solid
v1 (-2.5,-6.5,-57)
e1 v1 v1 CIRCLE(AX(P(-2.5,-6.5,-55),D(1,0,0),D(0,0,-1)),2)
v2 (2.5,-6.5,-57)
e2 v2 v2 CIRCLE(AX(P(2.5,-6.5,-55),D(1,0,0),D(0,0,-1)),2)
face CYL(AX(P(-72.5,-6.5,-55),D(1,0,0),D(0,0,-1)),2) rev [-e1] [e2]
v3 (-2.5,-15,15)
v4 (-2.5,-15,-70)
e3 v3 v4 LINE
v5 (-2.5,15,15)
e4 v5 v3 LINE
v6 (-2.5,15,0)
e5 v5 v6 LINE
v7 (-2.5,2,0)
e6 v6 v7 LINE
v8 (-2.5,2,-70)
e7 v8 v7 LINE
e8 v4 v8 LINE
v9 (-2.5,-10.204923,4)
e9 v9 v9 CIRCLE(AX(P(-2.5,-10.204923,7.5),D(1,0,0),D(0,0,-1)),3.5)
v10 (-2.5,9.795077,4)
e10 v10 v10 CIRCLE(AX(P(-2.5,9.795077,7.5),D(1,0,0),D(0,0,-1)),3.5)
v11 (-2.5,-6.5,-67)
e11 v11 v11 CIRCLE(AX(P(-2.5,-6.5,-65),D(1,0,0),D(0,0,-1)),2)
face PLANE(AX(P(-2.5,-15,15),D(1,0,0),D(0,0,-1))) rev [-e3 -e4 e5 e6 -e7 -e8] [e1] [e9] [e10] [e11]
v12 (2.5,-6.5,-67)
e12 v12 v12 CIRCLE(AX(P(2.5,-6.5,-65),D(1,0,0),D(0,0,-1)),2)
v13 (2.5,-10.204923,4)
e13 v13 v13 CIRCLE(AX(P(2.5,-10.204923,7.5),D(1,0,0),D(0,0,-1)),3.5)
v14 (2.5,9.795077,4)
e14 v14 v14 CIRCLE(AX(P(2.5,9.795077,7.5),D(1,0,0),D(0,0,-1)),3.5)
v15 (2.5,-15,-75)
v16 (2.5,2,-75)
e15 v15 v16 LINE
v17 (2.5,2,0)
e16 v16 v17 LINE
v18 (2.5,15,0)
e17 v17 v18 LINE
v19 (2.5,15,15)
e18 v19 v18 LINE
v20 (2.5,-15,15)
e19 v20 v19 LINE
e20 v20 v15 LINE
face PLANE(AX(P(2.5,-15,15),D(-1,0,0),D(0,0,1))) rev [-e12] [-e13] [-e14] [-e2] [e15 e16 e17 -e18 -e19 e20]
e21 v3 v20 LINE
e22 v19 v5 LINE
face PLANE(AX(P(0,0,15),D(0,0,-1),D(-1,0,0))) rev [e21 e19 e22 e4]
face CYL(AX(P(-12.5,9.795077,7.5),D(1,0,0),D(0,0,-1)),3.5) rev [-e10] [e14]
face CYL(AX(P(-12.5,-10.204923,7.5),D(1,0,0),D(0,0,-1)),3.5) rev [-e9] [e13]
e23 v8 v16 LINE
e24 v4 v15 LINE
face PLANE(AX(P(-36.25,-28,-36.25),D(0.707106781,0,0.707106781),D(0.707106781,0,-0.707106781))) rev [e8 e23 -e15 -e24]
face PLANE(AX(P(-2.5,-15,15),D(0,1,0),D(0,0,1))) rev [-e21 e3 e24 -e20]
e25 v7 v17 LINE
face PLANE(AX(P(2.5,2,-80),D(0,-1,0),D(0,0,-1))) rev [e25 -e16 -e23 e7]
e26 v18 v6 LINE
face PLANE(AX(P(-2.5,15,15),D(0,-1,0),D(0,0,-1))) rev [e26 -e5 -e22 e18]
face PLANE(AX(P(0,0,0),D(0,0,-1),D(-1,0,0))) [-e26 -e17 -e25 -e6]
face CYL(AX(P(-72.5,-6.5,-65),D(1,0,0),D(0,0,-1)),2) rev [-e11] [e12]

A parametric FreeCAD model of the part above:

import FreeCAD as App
import Part
import Sketcher
from FreeCAD import Vector
Q = App.Units.Quantity


def add_polygon(sketch, points):
    """Adds a closed chain of lines whose ends are joined by coincident constraints."""
    first, n = sketch.GeometryCount, len(points)
    for a, b in zip(points, points[1:] + points[:1]):
        sketch.addGeometry(Part.LineSegment(App.Vector(*a, 0), App.Vector(*b, 0)), False)
    for i in range(n):
        sketch.addConstraint(Sketcher.Constraint("Coincident", first + i, 2, first + (i + 1) % n, 1))

doc = App.newDocument("Part")
body = doc.addObject("PartDesign::Body", "Body")

sketch1 = body.newObject("Sketcher::SketchObject", "Sketch")
sketch1.AttachmentSupport = (doc.getObject("XY_Plane"), [""])
sketch1.MapMode = "FlatFace"
add_polygon(sketch1, [(-2, 15), (-2, -15), (2, -15), (2, 15)])
sketch1.addConstraint(Sketcher.Constraint("Vertical", 0))
sketch1.addConstraint(Sketcher.Constraint("Horizontal", 1))
sketch1.addConstraint(Sketcher.Constraint("Vertical", 2))
sketch1.addConstraint(Sketcher.Constraint("Horizontal", 3))
sketch1.addConstraint(Sketcher.Constraint("Symmetric", 0, 2, 2, 2, -1, 1))
sketch1.addConstraint(Sketcher.Constraint("DistanceX", 1, 1, 1, 2, Q("5 mm")))
sketch1.addConstraint(Sketcher.Constraint("DistanceY", 0, 2, 0, 1, Q("30 mm")))
pad1 = body.newObject("PartDesign::Pad", "Pad")
pad1.Profile = sketch1
pad1.Length = 15

sketch2 = body.newObject("Sketcher::SketchObject", "Sketch001")
sketch2.AttachmentSupport = (doc.getObject("YZ_Plane"), [""])
sketch2.MapMode = "FlatFace"
sketch2.AttachmentOffset = App.Placement(Vector(0, 0, 2.5), App.Rotation())
sketch2.addGeometry(Part.Circle(Vector(9.8, 7.5, 0), Vector(0, 0, 1), 3.5), False)
sketch2.addGeometry(Part.Circle(Vector(-10.2, 7.5, 0), Vector(0, 0, 1), 3.5), False)
sketch2.addConstraint(Sketcher.Constraint("Equal", 0, 1))
sketch2.addConstraint(Sketcher.Constraint("Horizontal", 0, 3, 1, 3))
sketch2.addConstraint(Sketcher.Constraint("Diameter", 0, Q("7 mm")))
sketch2.addConstraint(Sketcher.Constraint("DistanceX", 1, 3, 0, 3, Q("20 mm")))
sketch2.addConstraint(Sketcher.Constraint("DistanceY", -1, 1, 0, 3, Q("7.5 mm")))
sketch2.addConstraint(Sketcher.Constraint("DistanceX", -1, 1, 0, 3, Q("9.795077 mm")))
pocket1 = body.newObject("PartDesign::Pocket", "Pocket")
pocket1.Profile = sketch2
pocket1.Length = 15

sketch3 = body.newObject("Sketcher::SketchObject", "Sketch002")
sketch3.AttachmentSupport = (doc.getObject("XY_Plane"), [""])
sketch3.MapMode = "FlatFace"
add_polygon(sketch3, [(2, 2), (2, -15), (-2, -15), (-2, 2)])
sketch3.addConstraint(Sketcher.Constraint("Vertical", 0))
sketch3.addConstraint(Sketcher.Constraint("Horizontal", 1))
sketch3.addConstraint(Sketcher.Constraint("Vertical", 2))
sketch3.addConstraint(Sketcher.Constraint("Horizontal", 3))
sketch3.addConstraint(Sketcher.Constraint("DistanceX", 1, 2, 1, 1, Q("5 mm")))
sketch3.addConstraint(Sketcher.Constraint("DistanceY", 0, 2, 0, 1, Q("17 mm")))
sketch3.addConstraint(Sketcher.Constraint("DistanceY", 0, 2, -1, 1, Q("15 mm")))
sketch3.addConstraint(Sketcher.Constraint("DistanceX", -1, 1, 0, 2, Q("2.5 mm")))
pad2 = body.newObject("PartDesign::Pad", "Pad001")
pad2.Profile = sketch3
pad2.Length = 80
pad2.Reversed = True

sketch4 = body.newObject("Sketcher::SketchObject", "Sketch003")
sketch4.AttachmentSupport = (doc.getObject("YZ_Plane"), [""])
sketch4.MapMode = "FlatFace"
sketch4.AttachmentOffset = App.Placement(Vector(0, 0, 2.5), App.Rotation())
sketch4.addGeometry(Part.Circle(Vector(-6.5, -65, 0), Vector(0, 0, 1), 2), False)
sketch4.addGeometry(Part.Circle(Vector(-6.5, -55, 0), Vector(0, 0, 1), 2), False)
sketch4.addConstraint(Sketcher.Constraint("Equal", 0, 1))
sketch4.addConstraint(Sketcher.Constraint("Vertical", 0, 3, 1, 3))
sketch4.addConstraint(Sketcher.Constraint("Diameter", 0, Q("4 mm")))
sketch4.addConstraint(Sketcher.Constraint("DistanceY", 0, 3, -1, 1, Q("65 mm")))
sketch4.addConstraint(Sketcher.Constraint("DistanceY", 1, 3, -1, 1, Q("55 mm")))
sketch4.addConstraint(Sketcher.Constraint("DistanceX", 0, 3, -1, 1, Q("6.5 mm")))
pocket2 = body.newObject("PartDesign::Pocket", "Pocket001")
pocket2.Profile = sketch4
pocket2.Length = 75

sketch5 = body.newObject("Sketcher::SketchObject", "Sketch004")
sketch5.AttachmentSupport = (doc.getObject("XZ_Plane"), [""])
sketch5.MapMode = "FlatFace"
sketch5.AttachmentOffset = App.Placement(Vector(0, 0, -2), App.Rotation())
add_polygon(sketch5, [(-2, -70), (2, -75), (2, -80), (-2, -80)])
sketch5.addConstraint(Sketcher.Constraint("Vertical", 1))
sketch5.addConstraint(Sketcher.Constraint("Horizontal", 2))
sketch5.addConstraint(Sketcher.Constraint("Vertical", 3))
sketch5.addConstraint(Sketcher.Constraint("Equal", 2, 1))
sketch5.addConstraint(Sketcher.Constraint("DistanceX", 2, 2, 2, 1, Q("5 mm")))
sketch5.addConstraint(Sketcher.Constraint("DistanceY", 3, 1, 3, 2, Q("10 mm")))
sketch5.addConstraint(Sketcher.Constraint("DistanceY", 0, 2, -1, 1, Q("75 mm")))
sketch5.addConstraint(Sketcher.Constraint("DistanceX", -1, 1, 0, 2, Q("2.5 mm")))
pocket3 = body.newObject("PartDesign::Pocket", "Pocket002")
pocket3.Profile = sketch5
pocket3.Length = 30
pocket3.Reversed = True

doc.recompute()
